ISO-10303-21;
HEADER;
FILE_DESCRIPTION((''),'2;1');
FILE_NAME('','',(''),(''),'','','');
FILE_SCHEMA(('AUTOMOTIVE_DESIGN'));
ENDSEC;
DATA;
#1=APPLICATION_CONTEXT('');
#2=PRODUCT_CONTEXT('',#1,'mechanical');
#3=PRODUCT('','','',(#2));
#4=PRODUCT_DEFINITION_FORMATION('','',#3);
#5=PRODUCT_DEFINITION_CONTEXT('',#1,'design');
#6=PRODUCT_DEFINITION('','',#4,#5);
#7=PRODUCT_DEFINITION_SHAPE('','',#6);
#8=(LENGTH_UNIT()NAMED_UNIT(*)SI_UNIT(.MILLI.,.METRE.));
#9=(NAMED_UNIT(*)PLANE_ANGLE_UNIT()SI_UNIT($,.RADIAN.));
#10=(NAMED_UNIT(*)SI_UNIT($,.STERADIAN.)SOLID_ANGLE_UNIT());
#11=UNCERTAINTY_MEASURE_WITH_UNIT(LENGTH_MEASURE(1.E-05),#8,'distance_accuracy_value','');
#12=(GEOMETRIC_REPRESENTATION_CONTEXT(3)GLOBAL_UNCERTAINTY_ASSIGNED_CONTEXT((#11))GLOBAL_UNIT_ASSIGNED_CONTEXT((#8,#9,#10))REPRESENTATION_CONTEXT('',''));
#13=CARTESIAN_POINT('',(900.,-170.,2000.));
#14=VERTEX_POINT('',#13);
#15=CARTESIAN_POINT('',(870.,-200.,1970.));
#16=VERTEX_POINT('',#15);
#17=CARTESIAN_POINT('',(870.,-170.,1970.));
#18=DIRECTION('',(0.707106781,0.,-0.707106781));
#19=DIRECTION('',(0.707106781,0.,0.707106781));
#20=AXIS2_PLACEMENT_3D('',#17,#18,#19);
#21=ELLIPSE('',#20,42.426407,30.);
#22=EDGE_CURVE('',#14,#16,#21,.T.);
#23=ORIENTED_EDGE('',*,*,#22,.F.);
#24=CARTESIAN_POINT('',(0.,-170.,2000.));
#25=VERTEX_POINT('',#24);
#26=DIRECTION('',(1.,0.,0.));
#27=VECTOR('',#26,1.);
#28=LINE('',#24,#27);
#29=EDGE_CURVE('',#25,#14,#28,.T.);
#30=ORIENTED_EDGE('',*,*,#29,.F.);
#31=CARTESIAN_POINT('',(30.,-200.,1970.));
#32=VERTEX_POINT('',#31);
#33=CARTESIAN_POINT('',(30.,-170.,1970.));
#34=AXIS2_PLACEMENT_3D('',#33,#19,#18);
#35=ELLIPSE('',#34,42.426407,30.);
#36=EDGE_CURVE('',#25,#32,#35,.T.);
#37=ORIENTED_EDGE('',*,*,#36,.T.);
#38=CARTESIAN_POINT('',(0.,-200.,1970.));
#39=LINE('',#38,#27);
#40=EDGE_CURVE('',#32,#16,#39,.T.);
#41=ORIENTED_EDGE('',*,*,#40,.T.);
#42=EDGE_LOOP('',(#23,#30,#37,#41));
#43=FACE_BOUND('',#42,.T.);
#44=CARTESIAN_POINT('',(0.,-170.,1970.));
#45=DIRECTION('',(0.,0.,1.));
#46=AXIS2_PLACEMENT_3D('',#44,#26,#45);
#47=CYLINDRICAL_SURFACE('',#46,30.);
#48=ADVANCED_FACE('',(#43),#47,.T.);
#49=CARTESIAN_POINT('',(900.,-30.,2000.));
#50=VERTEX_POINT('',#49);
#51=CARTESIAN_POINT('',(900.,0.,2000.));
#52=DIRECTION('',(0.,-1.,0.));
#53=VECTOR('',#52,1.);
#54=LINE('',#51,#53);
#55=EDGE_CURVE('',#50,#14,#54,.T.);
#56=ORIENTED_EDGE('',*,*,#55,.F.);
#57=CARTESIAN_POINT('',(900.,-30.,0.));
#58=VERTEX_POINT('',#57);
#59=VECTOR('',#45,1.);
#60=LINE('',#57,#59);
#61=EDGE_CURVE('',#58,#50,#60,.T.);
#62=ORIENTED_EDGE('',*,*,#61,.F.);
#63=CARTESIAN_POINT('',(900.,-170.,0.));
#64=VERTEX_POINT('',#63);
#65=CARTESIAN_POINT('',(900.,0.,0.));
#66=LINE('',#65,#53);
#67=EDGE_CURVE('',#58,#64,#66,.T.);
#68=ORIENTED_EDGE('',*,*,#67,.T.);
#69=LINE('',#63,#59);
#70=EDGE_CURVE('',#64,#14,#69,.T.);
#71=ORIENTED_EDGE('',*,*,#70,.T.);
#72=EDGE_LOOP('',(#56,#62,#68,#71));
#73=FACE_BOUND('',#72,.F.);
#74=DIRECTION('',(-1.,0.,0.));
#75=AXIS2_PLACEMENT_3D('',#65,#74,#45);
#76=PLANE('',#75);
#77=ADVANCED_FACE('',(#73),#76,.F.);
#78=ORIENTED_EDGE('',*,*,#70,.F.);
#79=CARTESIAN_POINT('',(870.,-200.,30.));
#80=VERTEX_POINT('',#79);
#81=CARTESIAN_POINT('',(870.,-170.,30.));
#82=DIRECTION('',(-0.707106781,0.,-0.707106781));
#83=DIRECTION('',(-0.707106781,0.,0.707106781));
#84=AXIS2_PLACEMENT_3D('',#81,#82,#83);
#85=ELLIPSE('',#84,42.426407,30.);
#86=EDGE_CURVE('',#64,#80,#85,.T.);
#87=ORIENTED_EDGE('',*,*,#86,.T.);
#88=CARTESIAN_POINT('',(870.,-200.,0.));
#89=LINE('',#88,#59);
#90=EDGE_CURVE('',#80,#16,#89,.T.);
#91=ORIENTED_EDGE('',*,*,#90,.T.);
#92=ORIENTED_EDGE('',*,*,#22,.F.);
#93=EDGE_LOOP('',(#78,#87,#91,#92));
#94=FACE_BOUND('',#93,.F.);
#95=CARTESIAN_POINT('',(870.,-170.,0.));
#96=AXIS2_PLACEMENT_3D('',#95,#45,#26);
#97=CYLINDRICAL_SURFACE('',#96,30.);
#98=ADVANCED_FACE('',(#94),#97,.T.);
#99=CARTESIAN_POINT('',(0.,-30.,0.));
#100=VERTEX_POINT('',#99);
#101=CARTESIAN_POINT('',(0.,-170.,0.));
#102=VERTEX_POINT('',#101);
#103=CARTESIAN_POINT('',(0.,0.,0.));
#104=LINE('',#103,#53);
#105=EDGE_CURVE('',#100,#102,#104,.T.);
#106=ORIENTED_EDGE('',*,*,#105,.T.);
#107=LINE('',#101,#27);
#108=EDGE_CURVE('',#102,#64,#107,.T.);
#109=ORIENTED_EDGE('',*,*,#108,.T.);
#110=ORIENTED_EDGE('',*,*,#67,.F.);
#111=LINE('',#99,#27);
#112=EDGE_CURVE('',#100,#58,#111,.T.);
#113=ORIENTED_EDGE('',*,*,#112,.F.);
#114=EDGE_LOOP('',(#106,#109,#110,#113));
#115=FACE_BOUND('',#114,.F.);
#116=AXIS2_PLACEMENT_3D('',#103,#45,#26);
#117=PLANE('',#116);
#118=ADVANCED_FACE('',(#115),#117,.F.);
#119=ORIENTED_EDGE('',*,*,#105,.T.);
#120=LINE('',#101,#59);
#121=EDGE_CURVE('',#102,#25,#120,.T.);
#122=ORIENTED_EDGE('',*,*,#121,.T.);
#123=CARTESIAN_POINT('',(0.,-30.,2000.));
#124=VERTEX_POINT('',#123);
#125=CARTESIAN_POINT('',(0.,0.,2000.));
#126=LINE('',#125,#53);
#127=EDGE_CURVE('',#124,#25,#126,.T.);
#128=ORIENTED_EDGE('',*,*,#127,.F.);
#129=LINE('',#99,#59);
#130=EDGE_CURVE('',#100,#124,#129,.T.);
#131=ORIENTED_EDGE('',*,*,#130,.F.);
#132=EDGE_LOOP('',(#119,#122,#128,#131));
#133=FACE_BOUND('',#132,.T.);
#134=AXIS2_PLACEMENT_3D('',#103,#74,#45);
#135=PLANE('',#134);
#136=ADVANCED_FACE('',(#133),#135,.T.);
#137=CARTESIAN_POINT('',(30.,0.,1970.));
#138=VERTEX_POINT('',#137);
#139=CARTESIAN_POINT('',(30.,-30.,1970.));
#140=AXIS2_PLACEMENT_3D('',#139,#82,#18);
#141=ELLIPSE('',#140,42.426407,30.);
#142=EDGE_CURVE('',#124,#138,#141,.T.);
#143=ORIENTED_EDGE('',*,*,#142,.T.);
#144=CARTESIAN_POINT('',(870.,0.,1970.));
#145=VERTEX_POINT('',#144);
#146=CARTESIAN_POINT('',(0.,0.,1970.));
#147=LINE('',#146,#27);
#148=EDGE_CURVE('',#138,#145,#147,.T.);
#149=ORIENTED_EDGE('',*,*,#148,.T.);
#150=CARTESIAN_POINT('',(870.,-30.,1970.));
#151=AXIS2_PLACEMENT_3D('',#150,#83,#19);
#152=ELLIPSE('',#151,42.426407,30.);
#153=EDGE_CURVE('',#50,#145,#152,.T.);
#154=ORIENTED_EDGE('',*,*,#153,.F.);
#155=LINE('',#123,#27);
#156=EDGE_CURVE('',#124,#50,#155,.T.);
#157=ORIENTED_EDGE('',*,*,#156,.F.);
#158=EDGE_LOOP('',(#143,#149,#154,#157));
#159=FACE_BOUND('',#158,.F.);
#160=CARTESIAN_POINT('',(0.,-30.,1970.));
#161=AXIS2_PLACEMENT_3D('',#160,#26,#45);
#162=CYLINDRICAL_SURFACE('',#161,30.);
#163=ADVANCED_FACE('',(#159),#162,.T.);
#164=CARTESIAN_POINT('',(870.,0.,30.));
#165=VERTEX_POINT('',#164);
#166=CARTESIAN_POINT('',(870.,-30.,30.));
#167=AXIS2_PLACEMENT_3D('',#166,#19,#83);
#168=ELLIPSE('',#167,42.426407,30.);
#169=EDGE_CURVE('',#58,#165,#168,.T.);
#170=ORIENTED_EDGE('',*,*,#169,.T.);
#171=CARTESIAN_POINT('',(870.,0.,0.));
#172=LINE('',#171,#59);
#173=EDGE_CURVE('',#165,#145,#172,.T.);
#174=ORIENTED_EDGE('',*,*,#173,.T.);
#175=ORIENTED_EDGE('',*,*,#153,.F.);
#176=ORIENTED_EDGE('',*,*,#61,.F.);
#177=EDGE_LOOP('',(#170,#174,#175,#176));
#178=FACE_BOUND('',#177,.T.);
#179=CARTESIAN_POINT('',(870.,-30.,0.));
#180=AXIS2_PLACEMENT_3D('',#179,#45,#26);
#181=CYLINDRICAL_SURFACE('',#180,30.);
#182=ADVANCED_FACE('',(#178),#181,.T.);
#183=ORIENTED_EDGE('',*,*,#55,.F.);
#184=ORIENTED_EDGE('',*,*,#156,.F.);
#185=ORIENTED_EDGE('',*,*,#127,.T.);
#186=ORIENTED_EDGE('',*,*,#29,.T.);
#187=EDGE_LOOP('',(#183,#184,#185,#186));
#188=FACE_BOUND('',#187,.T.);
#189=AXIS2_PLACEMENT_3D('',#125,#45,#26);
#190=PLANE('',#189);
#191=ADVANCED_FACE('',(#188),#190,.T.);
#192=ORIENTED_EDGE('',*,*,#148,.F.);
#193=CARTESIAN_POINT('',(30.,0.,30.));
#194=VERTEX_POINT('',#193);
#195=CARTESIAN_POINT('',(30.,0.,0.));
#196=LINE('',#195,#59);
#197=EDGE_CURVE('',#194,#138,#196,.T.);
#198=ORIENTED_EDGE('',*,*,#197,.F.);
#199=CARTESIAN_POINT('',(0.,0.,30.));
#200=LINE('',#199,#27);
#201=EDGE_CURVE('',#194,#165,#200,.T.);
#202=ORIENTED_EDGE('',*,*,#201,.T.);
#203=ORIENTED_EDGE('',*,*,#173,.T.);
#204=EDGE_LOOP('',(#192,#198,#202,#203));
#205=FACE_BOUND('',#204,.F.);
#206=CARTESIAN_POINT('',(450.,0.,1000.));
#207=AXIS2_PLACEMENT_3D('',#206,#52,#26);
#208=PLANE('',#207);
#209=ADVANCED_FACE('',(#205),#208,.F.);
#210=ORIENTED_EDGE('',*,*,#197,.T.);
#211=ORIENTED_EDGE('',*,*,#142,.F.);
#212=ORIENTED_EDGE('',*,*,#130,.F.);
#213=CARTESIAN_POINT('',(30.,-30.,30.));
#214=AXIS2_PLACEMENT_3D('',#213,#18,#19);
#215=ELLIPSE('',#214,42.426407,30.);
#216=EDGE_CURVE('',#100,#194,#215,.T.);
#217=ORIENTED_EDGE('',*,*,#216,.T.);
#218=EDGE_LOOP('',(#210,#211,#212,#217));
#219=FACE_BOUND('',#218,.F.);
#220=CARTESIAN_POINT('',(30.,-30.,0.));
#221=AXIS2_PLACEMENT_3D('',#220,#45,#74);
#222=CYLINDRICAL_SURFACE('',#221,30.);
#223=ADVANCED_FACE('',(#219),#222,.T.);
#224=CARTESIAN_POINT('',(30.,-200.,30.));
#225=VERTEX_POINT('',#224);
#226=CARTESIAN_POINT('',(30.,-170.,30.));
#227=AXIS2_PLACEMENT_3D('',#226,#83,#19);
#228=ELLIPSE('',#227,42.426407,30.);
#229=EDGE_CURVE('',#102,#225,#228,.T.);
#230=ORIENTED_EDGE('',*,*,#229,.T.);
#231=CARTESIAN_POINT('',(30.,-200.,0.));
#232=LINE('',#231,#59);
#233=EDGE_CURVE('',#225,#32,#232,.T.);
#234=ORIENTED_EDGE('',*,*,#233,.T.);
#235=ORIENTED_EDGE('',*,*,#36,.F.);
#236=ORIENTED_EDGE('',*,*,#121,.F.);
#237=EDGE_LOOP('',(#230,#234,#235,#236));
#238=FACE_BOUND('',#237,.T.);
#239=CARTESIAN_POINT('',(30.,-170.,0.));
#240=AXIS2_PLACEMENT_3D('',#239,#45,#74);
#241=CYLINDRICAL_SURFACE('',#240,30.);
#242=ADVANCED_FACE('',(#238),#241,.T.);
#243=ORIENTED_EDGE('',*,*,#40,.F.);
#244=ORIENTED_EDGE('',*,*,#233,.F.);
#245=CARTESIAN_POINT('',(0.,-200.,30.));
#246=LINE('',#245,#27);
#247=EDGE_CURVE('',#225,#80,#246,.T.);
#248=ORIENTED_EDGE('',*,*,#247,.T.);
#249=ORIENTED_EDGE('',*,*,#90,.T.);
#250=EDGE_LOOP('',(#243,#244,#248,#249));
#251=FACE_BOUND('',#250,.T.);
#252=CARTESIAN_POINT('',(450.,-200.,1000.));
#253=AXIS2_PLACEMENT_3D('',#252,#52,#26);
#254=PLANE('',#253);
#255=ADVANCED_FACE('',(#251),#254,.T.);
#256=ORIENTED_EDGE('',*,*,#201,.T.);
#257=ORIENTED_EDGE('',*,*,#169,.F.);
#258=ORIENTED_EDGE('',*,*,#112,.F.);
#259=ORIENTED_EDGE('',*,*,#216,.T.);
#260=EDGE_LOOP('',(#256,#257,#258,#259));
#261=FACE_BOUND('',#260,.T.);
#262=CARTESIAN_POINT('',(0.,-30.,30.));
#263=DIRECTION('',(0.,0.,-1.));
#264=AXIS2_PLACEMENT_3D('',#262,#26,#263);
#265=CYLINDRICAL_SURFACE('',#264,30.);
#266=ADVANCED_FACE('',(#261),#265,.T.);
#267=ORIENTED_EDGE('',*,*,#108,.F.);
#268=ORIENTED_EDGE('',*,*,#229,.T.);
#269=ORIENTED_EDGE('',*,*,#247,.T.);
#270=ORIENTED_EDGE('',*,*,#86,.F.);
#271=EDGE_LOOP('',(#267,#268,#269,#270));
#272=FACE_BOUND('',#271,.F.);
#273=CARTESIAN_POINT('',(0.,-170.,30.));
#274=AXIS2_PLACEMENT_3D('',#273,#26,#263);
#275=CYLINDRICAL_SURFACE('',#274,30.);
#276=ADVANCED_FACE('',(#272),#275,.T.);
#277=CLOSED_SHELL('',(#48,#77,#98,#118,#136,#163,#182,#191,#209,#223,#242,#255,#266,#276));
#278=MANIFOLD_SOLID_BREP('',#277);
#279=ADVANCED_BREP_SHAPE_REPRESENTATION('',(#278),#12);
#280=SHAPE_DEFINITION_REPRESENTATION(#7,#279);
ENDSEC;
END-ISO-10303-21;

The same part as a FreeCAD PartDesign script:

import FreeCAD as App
import Part
import Sketcher
from FreeCAD import Vector
Q = App.Units.Quantity


def edges_at(feature, points):
    """Names of the edges that pass closest to the given points."""
    edges = feature.Shape.Edges
    near = lambda p: min(range(len(edges)), key=lambda i: edges[i].distToShape(Part.Vertex(*p))[0])
    return sorted({f"Edge{near(p) + 1}" for p in points})


def add_polygon(sketch, points):
    """Adds a closed chain of lines whose ends are joined by coincident constraints."""
    first, n = sketch.GeometryCount, len(points)
    for a, b in zip(points, points[1:] + points[:1]):
        sketch.addGeometry(Part.LineSegment(App.Vector(*a, 0), App.Vector(*b, 0)), False)
    for i in range(n):
        sketch.addConstraint(Sketcher.Constraint("Coincident", first + i, 2, first + (i + 1) % n, 1))

doc = App.newDocument("Part")
body = doc.addObject("PartDesign::Body", "Body")

# Sketch on XZ plane
sketch1 = body.newObject("Sketcher::SketchObject", "Sketch")
sketch1.AttachmentSupport = (doc.getObject("XZ_Plane"), [""])
sketch1.MapMode = "FlatFace"
add_polygon(sketch1, [(0, 2000), (0, 0), (900, 0), (900, 2000)])  # lines 0-3
sketch1.addConstraint([
    Sketcher.Constraint("Vertical", 0),
    Sketcher.Constraint("Horizontal", 1),
    Sketcher.Constraint("Vertical", 2),
    Sketcher.Constraint("Horizontal", 3),
    Sketcher.Constraint("Coincident", 0, 2, -1, 1),
    Sketcher.Constraint("DistanceX", 1, 1, 1, 2, Q("900 mm")),
    Sketcher.Constraint("DistanceY", 0, 2, 0, 1, Q("2000 mm")),
])
pad1 = body.newObject("PartDesign::Pad", "Pad")
pad1.Profile = sketch1
pad1.Length = 200
doc.recompute()

fillet = body.newObject("PartDesign::Fillet", "Fillet")
fillet.Base = (pad1, edges_at(pad1, [
    (450, -200, 2000),
    (900, -200, 1000),
    (450, -200, 0),
    (0, -200, 1000),
    (450, 0, 2000),
    (0, 0, 1000),
    (900, 0, 1000),
    (450, 0, 0),
]))
fillet.Radius = 30

doc.recompute()
